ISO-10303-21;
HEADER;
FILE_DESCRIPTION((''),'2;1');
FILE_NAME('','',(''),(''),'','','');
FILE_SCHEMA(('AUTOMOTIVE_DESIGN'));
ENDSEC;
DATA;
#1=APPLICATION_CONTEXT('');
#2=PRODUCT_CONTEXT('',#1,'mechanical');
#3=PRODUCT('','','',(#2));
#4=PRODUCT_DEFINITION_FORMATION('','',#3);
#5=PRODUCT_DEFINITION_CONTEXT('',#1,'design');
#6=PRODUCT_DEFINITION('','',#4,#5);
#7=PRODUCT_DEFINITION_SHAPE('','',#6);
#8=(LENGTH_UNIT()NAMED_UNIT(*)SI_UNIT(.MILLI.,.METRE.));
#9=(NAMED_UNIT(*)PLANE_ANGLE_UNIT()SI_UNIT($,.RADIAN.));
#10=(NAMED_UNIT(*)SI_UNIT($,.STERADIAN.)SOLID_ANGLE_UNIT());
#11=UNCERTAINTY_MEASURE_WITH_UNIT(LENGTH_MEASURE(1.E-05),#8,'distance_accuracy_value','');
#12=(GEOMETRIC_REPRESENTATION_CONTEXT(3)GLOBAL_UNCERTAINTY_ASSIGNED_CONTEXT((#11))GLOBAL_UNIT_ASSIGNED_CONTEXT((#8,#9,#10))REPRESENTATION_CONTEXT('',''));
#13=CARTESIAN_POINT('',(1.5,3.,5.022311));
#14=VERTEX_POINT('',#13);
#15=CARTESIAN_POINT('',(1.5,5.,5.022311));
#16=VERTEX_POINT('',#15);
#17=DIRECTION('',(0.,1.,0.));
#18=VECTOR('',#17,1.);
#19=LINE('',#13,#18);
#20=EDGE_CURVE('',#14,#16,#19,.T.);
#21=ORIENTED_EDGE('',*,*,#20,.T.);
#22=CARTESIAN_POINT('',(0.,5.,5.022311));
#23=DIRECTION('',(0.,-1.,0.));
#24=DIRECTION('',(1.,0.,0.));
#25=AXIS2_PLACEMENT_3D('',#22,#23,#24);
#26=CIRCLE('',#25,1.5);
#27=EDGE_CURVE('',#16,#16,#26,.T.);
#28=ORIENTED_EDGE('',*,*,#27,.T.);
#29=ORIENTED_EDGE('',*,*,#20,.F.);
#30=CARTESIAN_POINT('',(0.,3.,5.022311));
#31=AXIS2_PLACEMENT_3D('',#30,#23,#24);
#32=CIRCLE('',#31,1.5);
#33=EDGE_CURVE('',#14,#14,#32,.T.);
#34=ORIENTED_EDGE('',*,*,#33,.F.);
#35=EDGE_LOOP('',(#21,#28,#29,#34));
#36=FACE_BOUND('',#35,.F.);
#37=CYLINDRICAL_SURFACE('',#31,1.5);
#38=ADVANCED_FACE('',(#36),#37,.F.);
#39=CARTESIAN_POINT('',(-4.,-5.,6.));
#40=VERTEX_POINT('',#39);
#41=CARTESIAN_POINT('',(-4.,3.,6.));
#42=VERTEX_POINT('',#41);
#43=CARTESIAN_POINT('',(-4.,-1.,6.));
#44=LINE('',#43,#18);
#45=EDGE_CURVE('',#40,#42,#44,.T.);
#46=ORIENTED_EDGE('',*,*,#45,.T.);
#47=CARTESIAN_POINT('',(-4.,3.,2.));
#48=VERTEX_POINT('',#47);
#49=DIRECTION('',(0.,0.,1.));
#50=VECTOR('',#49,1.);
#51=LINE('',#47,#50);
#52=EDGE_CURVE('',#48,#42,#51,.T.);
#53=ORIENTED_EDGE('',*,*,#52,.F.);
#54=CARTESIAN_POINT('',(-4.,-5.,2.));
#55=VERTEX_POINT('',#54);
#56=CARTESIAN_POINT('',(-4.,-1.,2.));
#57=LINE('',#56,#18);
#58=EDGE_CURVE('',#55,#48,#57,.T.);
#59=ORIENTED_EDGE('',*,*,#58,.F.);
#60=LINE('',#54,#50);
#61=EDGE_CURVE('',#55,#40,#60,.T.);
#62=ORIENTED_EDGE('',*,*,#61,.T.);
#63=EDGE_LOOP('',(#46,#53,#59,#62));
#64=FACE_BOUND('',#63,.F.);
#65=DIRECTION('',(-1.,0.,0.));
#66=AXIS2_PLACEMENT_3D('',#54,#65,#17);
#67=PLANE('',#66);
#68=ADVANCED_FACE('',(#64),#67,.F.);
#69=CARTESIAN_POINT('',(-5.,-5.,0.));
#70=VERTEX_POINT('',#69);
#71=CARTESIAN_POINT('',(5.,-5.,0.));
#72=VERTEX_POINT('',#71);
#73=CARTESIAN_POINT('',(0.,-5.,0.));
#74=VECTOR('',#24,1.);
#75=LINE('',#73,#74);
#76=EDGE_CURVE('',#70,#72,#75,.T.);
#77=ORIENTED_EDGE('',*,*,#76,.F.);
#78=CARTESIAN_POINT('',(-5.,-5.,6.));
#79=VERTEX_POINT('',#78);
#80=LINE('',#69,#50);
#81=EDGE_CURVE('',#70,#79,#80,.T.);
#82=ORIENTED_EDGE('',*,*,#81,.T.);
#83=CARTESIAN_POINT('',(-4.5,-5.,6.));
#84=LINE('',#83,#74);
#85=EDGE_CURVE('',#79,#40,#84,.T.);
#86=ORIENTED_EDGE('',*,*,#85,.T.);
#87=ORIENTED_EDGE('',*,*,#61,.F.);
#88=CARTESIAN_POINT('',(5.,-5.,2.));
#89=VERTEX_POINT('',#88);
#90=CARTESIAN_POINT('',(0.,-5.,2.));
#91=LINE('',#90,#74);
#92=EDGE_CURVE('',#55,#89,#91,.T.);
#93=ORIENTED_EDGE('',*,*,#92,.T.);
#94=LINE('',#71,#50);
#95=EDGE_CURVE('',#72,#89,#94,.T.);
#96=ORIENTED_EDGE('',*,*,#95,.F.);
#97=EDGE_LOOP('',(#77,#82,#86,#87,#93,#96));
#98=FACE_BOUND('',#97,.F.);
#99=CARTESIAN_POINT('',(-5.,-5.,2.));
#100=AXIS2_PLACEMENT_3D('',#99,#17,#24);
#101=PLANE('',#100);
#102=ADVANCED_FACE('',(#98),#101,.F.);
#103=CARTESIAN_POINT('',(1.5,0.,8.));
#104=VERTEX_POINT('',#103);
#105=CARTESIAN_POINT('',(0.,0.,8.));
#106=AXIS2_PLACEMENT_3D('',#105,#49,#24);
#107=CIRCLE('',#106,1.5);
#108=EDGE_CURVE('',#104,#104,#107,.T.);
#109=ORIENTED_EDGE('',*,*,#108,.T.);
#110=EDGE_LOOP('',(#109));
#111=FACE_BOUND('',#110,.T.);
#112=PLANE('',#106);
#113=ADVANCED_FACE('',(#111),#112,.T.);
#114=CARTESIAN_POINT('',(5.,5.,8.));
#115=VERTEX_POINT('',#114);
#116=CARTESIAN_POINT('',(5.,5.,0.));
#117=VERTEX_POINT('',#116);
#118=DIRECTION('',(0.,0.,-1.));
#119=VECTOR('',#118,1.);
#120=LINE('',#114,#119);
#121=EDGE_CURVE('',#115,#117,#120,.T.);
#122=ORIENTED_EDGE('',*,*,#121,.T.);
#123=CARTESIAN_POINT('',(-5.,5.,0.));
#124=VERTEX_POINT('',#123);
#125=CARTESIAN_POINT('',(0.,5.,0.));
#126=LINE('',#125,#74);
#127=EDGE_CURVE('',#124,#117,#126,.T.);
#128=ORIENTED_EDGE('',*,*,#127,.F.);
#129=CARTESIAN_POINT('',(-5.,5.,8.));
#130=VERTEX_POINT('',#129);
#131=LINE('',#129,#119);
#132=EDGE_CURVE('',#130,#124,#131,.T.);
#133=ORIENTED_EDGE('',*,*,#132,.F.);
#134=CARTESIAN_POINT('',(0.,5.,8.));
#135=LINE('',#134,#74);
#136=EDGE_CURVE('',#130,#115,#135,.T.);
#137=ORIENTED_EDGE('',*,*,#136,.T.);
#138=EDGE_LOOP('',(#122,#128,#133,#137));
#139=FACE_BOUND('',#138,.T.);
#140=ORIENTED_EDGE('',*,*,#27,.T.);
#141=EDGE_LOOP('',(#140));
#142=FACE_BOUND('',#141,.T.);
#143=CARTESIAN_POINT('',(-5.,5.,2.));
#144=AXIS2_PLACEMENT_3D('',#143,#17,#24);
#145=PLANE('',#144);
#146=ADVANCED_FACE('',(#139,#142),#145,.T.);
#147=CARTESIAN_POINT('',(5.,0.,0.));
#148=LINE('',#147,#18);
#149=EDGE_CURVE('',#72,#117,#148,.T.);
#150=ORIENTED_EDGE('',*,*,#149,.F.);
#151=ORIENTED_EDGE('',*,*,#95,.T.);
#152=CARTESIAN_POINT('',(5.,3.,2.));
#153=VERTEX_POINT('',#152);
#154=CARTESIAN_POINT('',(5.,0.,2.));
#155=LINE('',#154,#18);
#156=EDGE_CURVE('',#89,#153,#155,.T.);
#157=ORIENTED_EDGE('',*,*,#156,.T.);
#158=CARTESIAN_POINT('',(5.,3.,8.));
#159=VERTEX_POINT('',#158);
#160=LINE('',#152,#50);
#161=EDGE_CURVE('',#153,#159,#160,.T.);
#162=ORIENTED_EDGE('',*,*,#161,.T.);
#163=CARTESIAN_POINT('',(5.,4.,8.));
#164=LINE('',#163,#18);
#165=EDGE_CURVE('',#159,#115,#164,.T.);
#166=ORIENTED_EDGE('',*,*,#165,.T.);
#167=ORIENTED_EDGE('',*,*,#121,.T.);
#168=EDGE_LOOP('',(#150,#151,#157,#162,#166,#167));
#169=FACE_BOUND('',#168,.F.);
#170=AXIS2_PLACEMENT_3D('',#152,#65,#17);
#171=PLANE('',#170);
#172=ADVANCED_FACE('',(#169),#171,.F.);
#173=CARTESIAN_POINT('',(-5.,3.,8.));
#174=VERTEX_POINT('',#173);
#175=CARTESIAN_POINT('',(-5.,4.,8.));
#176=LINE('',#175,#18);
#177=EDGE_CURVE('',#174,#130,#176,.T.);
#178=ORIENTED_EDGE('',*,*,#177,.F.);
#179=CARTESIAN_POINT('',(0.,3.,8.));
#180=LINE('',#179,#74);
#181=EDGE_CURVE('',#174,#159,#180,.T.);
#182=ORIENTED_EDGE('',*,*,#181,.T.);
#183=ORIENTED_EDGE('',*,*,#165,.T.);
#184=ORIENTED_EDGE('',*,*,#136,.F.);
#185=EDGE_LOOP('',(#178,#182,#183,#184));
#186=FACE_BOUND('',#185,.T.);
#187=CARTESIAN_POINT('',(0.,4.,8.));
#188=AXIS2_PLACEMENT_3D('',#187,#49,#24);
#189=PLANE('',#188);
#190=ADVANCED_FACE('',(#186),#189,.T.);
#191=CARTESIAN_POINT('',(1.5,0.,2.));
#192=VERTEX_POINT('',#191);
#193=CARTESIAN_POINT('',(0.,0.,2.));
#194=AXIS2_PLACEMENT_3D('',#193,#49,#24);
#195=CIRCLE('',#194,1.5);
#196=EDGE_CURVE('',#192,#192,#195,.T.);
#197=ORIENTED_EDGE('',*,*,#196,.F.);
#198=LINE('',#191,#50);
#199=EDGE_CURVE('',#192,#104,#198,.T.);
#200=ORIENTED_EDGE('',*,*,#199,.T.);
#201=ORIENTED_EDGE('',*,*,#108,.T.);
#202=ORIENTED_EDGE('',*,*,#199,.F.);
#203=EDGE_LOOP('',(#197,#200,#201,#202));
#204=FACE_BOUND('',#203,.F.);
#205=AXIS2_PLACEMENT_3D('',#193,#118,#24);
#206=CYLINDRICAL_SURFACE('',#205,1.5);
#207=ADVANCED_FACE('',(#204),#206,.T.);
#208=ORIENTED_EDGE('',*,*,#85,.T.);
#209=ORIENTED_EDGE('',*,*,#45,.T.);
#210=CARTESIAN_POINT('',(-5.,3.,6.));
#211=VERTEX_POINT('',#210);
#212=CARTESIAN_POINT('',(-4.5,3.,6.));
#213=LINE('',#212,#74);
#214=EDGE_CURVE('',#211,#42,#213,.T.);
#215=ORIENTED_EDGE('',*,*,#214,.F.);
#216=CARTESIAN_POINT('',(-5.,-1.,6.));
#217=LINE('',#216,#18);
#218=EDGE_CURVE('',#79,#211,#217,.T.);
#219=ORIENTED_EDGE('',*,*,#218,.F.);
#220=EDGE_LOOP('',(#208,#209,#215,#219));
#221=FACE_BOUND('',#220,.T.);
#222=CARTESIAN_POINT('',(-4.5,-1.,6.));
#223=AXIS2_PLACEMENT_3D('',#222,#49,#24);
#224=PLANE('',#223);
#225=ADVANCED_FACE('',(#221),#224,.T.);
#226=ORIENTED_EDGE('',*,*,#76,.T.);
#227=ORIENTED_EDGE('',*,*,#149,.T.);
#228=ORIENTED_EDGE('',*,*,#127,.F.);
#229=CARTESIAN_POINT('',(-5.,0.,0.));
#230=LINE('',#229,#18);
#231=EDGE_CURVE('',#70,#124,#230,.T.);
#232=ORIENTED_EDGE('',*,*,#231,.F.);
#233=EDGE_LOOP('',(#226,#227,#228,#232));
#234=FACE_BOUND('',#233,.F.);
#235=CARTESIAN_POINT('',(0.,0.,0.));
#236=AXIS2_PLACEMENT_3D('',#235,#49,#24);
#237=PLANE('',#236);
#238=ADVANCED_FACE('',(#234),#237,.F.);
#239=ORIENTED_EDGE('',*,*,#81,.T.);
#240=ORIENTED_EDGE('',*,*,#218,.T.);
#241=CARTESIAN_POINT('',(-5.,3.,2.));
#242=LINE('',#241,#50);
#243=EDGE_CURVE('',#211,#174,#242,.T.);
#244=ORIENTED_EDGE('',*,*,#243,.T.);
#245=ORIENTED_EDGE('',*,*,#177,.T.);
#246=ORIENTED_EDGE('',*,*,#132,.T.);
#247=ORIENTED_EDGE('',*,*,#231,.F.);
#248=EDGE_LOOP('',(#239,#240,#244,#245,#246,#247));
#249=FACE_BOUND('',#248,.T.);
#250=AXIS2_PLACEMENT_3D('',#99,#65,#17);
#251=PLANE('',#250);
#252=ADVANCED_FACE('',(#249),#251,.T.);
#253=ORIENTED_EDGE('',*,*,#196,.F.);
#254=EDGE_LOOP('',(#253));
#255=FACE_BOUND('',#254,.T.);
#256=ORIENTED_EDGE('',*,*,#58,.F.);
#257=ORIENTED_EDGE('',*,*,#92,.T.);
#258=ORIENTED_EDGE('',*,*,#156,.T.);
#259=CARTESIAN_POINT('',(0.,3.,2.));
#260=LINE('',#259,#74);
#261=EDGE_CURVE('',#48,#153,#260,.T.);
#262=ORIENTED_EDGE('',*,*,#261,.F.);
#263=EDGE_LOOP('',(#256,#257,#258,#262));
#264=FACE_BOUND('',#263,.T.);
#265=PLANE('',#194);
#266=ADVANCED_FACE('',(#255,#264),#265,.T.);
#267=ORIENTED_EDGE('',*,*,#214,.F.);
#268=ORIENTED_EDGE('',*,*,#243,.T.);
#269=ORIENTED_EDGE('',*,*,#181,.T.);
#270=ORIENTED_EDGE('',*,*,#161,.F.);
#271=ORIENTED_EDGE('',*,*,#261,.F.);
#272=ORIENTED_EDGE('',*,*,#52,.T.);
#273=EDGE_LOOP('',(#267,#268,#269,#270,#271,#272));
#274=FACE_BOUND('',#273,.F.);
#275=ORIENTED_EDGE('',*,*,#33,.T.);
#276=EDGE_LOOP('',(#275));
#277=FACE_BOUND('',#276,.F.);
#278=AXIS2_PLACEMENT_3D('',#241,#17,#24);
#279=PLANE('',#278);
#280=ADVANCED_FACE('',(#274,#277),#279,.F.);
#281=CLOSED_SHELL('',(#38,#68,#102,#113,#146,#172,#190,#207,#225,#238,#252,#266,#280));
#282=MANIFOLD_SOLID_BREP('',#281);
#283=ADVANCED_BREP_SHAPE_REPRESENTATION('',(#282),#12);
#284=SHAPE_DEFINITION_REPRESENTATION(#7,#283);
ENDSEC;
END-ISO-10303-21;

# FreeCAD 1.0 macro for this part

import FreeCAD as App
import Part
import Sketcher

V = App.Vector


def add_polygon(sketch, points):
    """Adds a closed chain of lines whose ends are joined by coincident constraints."""
    first, n = sketch.GeometryCount, len(points)
    for a, b in zip(points, points[1:] + points[:1]):
        sketch.addGeometry(Part.LineSegment(App.Vector(*a, 0), App.Vector(*b, 0)), False)
    for i in range(n):
        sketch.addConstraint(Sketcher.Constraint("Coincident", first + i, 2, first + (i + 1) % n, 1))

doc = App.newDocument("Part")
body = doc.addObject("PartDesign::Body", "Body")

sketch1 = body.newObject("Sketcher::SketchObject", "Sketch")
sketch1.AttachmentSupport = (doc.getObject("XY_Plane"), [""])
sketch1.MapMode = "FlatFace"
add_polygon(sketch1, [(-5, 5), (-5, -5), (5, -5), (5, 5)])
sketch1.addConstraint([
    Sketcher.Constraint("Vertical", 0),
    Sketcher.Constraint("Horizontal", 1),
    Sketcher.Constraint("Vertical", 2),
    Sketcher.Constraint("Horizontal", 3),
    Sketcher.Constraint("Symmetric", 0, 2, 2, 2, -1, 1),
    Sketcher.Constraint("Equal", 3, 0),
    Sketcher.Constraint("DistanceX", 1, 1, 1, 2, 10.0),
])
pad1 = body.newObject("PartDesign::Pad", "Pad")
pad1.Profile = sketch1
pad1.Length = 2

sketch2 = body.newObject("Sketcher::SketchObject", "Sketch001")
sketch2.AttachmentSupport = (doc.getObject("XY_Plane"), [""])
sketch2.MapMode = "FlatFace"
sketch2.AttachmentOffset = App.Placement(V(0, 0, 2), App.Rotation())
add_polygon(sketch2, [(-5, 5), (-5, 3), (5, 3), (5, 5)])
sketch2.addConstraint([
    Sketcher.Constraint("Vertical", 0),
    Sketcher.Constraint("Horizontal", 1),
    Sketcher.Constraint("Vertical", 2),
    Sketcher.Constraint("Horizontal", 3),
    Sketcher.Constraint("DistanceX", 1, 1, 1, 2, 10.0),
    Sketcher.Constraint("DistanceY", 0, 2, 0, 1, 2.0),
    Sketcher.Constraint("DistanceX", 0, 2, -1, 1, 5.0),
    Sketcher.Constraint("DistanceY", -1, 1, 0, 2, 3.0),
])
pad2 = body.newObject("PartDesign::Pad", "Pad001")
pad2.Profile = sketch2
pad2.Length = 6

sketch3 = body.newObject("Sketcher::SketchObject", "Sketch002")
sketch3.AttachmentSupport = (doc.getObject("XZ_Plane"), [""])
sketch3.MapMode = "FlatFace"
sketch3.AttachmentOffset = App.Placement(V(0, 0, -3), App.Rotation())
sketch3.addGeometry(Part.Circle(V(0, 5, 0), V(0, 0, 1), 1.5), False)
sketch3.addConstraint([
    Sketcher.Constraint("PointOnObject", 0, 3, -2),
    Sketcher.Constraint("Diameter", 0, 3.0),
    Sketcher.Constraint("DistanceY", -1, 1, 0, 3, 5.022311),
])
pocket1 = body.newObject("PartDesign::Pocket", "Pocket")
pocket1.Profile = sketch3
pocket1.Length = 25

sketch4 = body.newObject("Sketcher::SketchObject", "Sketch003")
sketch4.AttachmentSupport = (doc.getObject("XY_Plane"), [""])
sketch4.MapMode = "FlatFace"
sketch4.AttachmentOffset = App.Placement(V(0, 0, 2), App.Rotation())
sketch4.addGeometry(Part.Circle(V(0, 0, 0), V(0, 0, 1), 1.5), False)
sketch4.addConstraint([
    Sketcher.Constraint("Coincident", 0, 3, -1, 1),
    Sketcher.Constraint("Diameter", 0, 3.0),
])
pad3 = body.newObject("PartDesign::Pad", "Pad002")
pad3.Profile = sketch4
pad3.Length = 6

sketch5 = body.newObject("Sketcher::SketchObject", "Sketch004")
sketch5.AttachmentSupport = (doc.getObject("XY_Plane"), [""])
sketch5.MapMode = "FlatFace"
sketch5.AttachmentOffset = App.Placement(V(0, 0, 2), App.Rotation())
add_polygon(sketch5, [(-5, 3), (-5, -5), (-4, -5), (-4, 3)])
sketch5.addConstraint([
    Sketcher.Constraint("Vertical", 0),
    Sketcher.Constraint("Horizontal", 1),
    Sketcher.Constraint("Vertical", 2),
    Sketcher.Constraint("Horizontal", 3),
    Sketcher.Constraint("DistanceX", 1, 1, 1, 2, 1.0),
    Sketcher.Constraint("DistanceY", 0, 2, 0, 1, 8.0),
    Sketcher.Constraint("DistanceX", 0, 2, -1, 1, 5.0),
    Sketcher.Constraint("DistanceY", 0, 2, -1, 1, 5.0),
])
pad4 = body.newObject("PartDesign::Pad", "Pad003")
pad4.Profile = sketch5
pad4.Length = 4

doc.recompute()
